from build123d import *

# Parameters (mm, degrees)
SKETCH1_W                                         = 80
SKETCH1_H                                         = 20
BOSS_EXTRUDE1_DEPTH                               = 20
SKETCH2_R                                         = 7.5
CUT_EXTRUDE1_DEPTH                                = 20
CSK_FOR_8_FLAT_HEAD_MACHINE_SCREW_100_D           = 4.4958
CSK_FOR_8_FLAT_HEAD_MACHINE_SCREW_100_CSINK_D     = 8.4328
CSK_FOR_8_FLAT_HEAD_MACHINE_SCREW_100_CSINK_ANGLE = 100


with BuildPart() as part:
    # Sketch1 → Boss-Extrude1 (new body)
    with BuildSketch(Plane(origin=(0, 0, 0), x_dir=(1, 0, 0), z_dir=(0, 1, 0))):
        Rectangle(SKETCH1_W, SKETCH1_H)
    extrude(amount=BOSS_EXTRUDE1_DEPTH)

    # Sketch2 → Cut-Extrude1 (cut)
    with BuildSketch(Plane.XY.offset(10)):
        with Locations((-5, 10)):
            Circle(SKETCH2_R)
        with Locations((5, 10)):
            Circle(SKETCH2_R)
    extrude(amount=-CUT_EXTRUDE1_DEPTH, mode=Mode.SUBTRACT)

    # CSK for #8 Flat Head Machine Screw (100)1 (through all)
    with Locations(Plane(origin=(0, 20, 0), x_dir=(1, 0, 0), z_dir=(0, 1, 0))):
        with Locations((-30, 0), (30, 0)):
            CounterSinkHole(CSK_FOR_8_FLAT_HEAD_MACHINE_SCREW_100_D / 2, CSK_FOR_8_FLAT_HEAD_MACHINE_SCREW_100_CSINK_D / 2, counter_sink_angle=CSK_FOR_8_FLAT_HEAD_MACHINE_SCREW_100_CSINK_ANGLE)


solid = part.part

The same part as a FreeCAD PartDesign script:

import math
import FreeCAD as App
import Part
import Sketcher

V = App.Vector

doc = App.newDocument("Part")
body = doc.addObject("PartDesign::Body", "Body")

# Sketch on XZ plane
sketch1 = body.newObject("Sketcher::SketchObject", "Sketch")
sketch1.AttachmentSupport = (doc.getObject("XZ_Plane"), [""])
sketch1.MapMode = "FlatFace"
sketch1.addGeometry([
    Part.LineSegment(V(-40, -10, 0), V(-40, 10, 0)),
    Part.LineSegment(V(-40, 10, 0), V(40, 10, 0)),
    Part.LineSegment(V(40, 10, 0), V(40, -10, 0)),
    Part.LineSegment(V(40, -10, 0), V(-40, -10, 0)),
], False)
sketch1.addConstraint([
    Sketcher.Constraint("Coincident", 0, 2, 1, 1),
    Sketcher.Constraint("Coincident", 1, 2, 2, 1),
    Sketcher.Constraint("Coincident", 2, 2, 3, 1),
    Sketcher.Constraint("Coincident", 3, 2, 0, 1),
    Sketcher.Constraint("Vertical", 0),
    Sketcher.Constraint("Horizontal", 1),
    Sketcher.Constraint("Vertical", 2),
    Sketcher.Constraint("Horizontal", 3),
    Sketcher.Constraint("Symmetric", 0, 2, 2, 2, -1, 1),
    Sketcher.Constraint("DistanceX", 1, 1, 1, 2, 80.0),
    Sketcher.Constraint("DistanceY", 0, 1, 0, 2, 20.0),
])
pad1 = body.newObject("PartDesign::Pad", "Pad")
pad1.Profile = sketch1
pad1.Length = 20
pad1.Reversed = True

# Sketch on XY plane
sketch2 = body.newObject("Sketcher::SketchObject", "Sketch001")
sketch2.AttachmentSupport = (doc.getObject("XY_Plane"), [""])
sketch2.MapMode = "FlatFace"
sketch2.AttachmentOffset = App.Placement(V(0, 0, 10), App.Rotation())
sketch2.addGeometry([
    Part.ArcOfCircle(Part.Circle(V(-5, 10, 0), V(0, 0, 1), 8), math.radians(48), math.radians(312)),
    Part.ArcOfCircle(Part.Circle(V(5, 10, 0), V(0, 0, 1), 8), math.radians(-132), math.radians(132)),
], False)
sketch2.addConstraint([
    Sketcher.Constraint("Coincident", 0, 1, 1, 2),
    Sketcher.Constraint("Coincident", 1, 1, 0, 2),
    Sketcher.Constraint("Equal", 0, 1),
    Sketcher.Constraint("Symmetric", 0, 3, 1, 3, -2),
    Sketcher.Constraint("Radius", 0, 7.5),
    Sketcher.Constraint("DistanceX", 0, 3, -1, 1, 5.0),
    Sketcher.Constraint("DistanceY", -1, 1, 0, 3, 10.0),
])
pocket1 = body.newObject("PartDesign::Pocket", "Pocket")
pocket1.Profile = sketch2
pocket1.Length = 20

# Sketch on XZ plane
sketch3 = body.newObject("Sketcher::SketchObject", "Sketch002")
sketch3.AttachmentSupport = (doc.getObject("XZ_Plane"), [""])
sketch3.MapMode = "FlatFace"
sketch3.AttachmentOffset = App.Placement(V(0, 0, -20), App.Rotation())
sketch3.addGeometry([
    Part.Circle(V(-30, 0, 0), V(0, 0, 1), 2.2),
    Part.Circle(V(30, 0, 0), V(0, 0, 1), 2.2),
], False)
sketch3.addConstraint([
    Sketcher.Constraint("Equal", 0, 1),
    Sketcher.Constraint("Symmetric", 0, 3, 1, 3, -1, 1),
    Sketcher.Constraint("PointOnObject", 0, 3, -1),
    Sketcher.Constraint("DistanceX", 0, 3, -1, 1, 30.0),
    Sketcher.Constraint("Diameter", 0, 4.4958),
])
doc.recompute()
hole = body.newObject("PartDesign::Hole", "Hole")
hole.Profile = sketch3
hole.ThreadType = "None"
hole.Diameter = 4.4958
hole.DepthType = "ThroughAll"
hole.HoleCutType = "Countersink"
hole.HoleCutDiameter = 8.4328
hole.HoleCutCountersinkAngle = 100
hole.Reversed = True

doc.recompute()
